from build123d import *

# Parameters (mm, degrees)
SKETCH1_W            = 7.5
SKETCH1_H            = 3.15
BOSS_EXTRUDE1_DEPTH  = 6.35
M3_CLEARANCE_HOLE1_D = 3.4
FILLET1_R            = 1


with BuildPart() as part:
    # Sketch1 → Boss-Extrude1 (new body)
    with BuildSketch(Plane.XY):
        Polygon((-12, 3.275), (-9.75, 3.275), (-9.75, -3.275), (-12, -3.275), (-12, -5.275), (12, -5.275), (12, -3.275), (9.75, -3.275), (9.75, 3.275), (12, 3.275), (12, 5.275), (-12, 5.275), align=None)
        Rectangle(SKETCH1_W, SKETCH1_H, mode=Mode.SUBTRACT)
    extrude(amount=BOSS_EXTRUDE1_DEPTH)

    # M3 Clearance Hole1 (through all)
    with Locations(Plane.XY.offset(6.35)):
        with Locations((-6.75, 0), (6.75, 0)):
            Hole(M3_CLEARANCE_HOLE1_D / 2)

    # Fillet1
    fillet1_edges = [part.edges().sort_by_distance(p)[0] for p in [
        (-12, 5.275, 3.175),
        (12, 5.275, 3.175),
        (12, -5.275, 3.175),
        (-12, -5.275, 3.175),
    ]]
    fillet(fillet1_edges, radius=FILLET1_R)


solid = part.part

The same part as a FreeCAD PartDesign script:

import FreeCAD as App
import Part
import Sketcher
from FreeCAD import Vector


def edges_at(feature, points):
    """Names of the edges that pass closest to the given points."""
    edges = feature.Shape.Edges
    near = lambda p: min(range(len(edges)), key=lambda i: edges[i].distToShape(Part.Vertex(*p))[0])
    return sorted({f"Edge{near(p) + 1}" for p in points})

doc = App.newDocument("Part")
params = doc.addObject("Spreadsheet::Sheet", "Params")
for row, (alias, value) in enumerate([
    ("sketch1_width", "24 mm"),
    ("sketch1_height", "2 mm"),
    ("sketch1_width2", "7.5 mm"),
    ("sketch1_height2", "6.55 mm"),
    ("sketch1_height3", "3.15 mm"),
    ("pad1_length", "6.35 mm"),
    ("sketch2_diameter", "3.4 mm"),
    ("hole_diameter", "3.4 mm"),
    ("fillet_radius", "1 mm"),
], start=1):
    params.set(f"A{row}", alias)
    params.set(f"B{row}", "=" + value)
    params.setAlias(f"B{row}", alias)

body = doc.addObject("PartDesign::Body", "Body")

sketch1 = body.newObject("Sketcher::SketchObject", "Sketch")
sketch1.AttachmentSupport = (doc.getObject("XY_Plane"), [""])
sketch1.MapMode = "FlatFace"
sketch1.addGeometry(Part.LineSegment(Vector(-12, 3.3, 0), Vector(-9.8, 3.3, 0)), False)
sketch1.addGeometry(Part.LineSegment(Vector(-9.8, 3.3, 0), Vector(-9.8, -3.3, 0)), False)
sketch1.addGeometry(Part.LineSegment(Vector(-9.8, -3.3, 0), Vector(-12, -3.3, 0)), False)
sketch1.addGeometry(Part.LineSegment(Vector(-12, -3.3, 0), Vector(-12, -5.3, 0)), False)
sketch1.addGeometry(Part.LineSegment(Vector(-12, -5.3, 0), Vector(12, -5.3, 0)), False)
sketch1.addGeometry(Part.LineSegment(Vector(12, -5.3, 0), Vector(12, -3.3, 0)), False)
sketch1.addGeometry(Part.LineSegment(Vector(12, -3.3, 0), Vector(9.8, -3.3, 0)), False)
sketch1.addGeometry(Part.LineSegment(Vector(9.8, -3.3, 0), Vector(9.8, 3.3, 0)), False)
sketch1.addGeometry(Part.LineSegment(Vector(9.8, 3.3, 0), Vector(12, 3.3, 0)), False)
sketch1.addGeometry(Part.LineSegment(Vector(12, 3.3, 0), Vector(12, 5.3, 0)), False)
sketch1.addGeometry(Part.LineSegment(Vector(12, 5.3, 0), Vector(-12, 5.3, 0)), False)
sketch1.addGeometry(Part.LineSegment(Vector(-12, 5.3, 0), Vector(-12, 3.3, 0)), False)
sketch1.addGeometry(Part.LineSegment(Vector(3.8, -1.6, 0), Vector(-3.8, -1.6, 0)), False)
sketch1.addGeometry(Part.LineSegment(Vector(-3.8, -1.6, 0), Vector(-3.8, 1.6, 0)), False)
sketch1.addGeometry(Part.LineSegment(Vector(-3.8, 1.6, 0), Vector(3.8, 1.6, 0)), False)
sketch1.addGeometry(Part.LineSegment(Vector(3.8, 1.6, 0), Vector(3.8, -1.6, 0)), False)
sketch1.addConstraint(Sketcher.Constraint("Coincident", 0, 2, 1, 1))
sketch1.addConstraint(Sketcher.Constraint("Coincident", 1, 2, 2, 1))
sketch1.addConstraint(Sketcher.Constraint("Coincident", 2, 2, 3, 1))
sketch1.addConstraint(Sketcher.Constraint("Coincident", 3, 2, 4, 1))
sketch1.addConstraint(Sketcher.Constraint("Coincident", 4, 2, 5, 1))
sketch1.addConstraint(Sketcher.Constraint("Coincident", 5, 2, 6, 1))
sketch1.addConstraint(Sketcher.Constraint("Coincident", 6, 2, 7, 1))
sketch1.addConstraint(Sketcher.Constraint("Coincident", 7, 2, 8, 1))
sketch1.addConstraint(Sketcher.Constraint("Coincident", 8, 2, 9, 1))
sketch1.addConstraint(Sketcher.Constraint("Coincident", 9, 2, 10, 1))
sketch1.addConstraint(Sketcher.Constraint("Coincident", 10, 2, 11, 1))
sketch1.addConstraint(Sketcher.Constraint("Coincident", 11, 2, 0, 1))
sketch1.addConstraint(Sketcher.Constraint("Coincident", 12, 2, 13, 1))
sketch1.addConstraint(Sketcher.Constraint("Coincident", 13, 2, 14, 1))
sketch1.addConstraint(Sketcher.Constraint("Coincident", 14, 2, 15, 1))
sketch1.addConstraint(Sketcher.Constraint("Coincident", 15, 2, 12, 1))
sketch1.addConstraint(Sketcher.Constraint("Horizontal", 0))
sketch1.addConstraint(Sketcher.Constraint("Vertical", 1))
sketch1.addConstraint(Sketcher.Constraint("Horizontal", 2))
sketch1.addConstraint(Sketcher.Constraint("Vertical", 3))
sketch1.addConstraint(Sketcher.Constraint("Horizontal", 4))
sketch1.addConstraint(Sketcher.Constraint("Vertical", 5))
sketch1.addConstraint(Sketcher.Constraint("Horizontal", 6))
sketch1.addConstraint(Sketcher.Constraint("Vertical", 7))
sketch1.addConstraint(Sketcher.Constraint("Horizontal", 8))
sketch1.addConstraint(Sketcher.Constraint("Vertical", 9))
sketch1.addConstraint(Sketcher.Constraint("Horizontal", 10))
sketch1.addConstraint(Sketcher.Constraint("Vertical", 11))
sketch1.addConstraint(Sketcher.Constraint("Horizontal", 12))
sketch1.addConstraint(Sketcher.Constraint("Vertical", 13))
sketch1.addConstraint(Sketcher.Constraint("Horizontal", 14))
sketch1.addConstraint(Sketcher.Constraint("Vertical", 15))
sketch1.addConstraint(Sketcher.Constraint("Symmetric", 0, 2, 6, 2, -1, 1))
sketch1.addConstraint(Sketcher.Constraint("Symmetric", 2, 2, 8, 2, -1, 1))
sketch1.addConstraint(Sketcher.Constraint("Symmetric", 4, 2, 10, 2, -1, 1))
sketch1.addConstraint(Sketcher.Constraint("Symmetric", 12, 2, 14, 2, -1, 1))
sketch1.addConstraint(Sketcher.Constraint("Symmetric", 2, 2, 5, 2, -2))
sketch1.addConstraint(Sketcher.Constraint("DistanceX", 4, 1, 4, 2, 24.0))
sketch1.addConstraint(Sketcher.Constraint("DistanceY", 3, 2, 3, 1, 2.0))
sketch1.addConstraint(Sketcher.Constraint("DistanceX", 12, 2, 12, 1, 7.5))
sketch1.addConstraint(Sketcher.Constraint("DistanceX", 1, 2, 12, 2, 6.0))
sketch1.addConstraint(Sketcher.Constraint("DistanceY", 1, 2, 1, 1, 6.55))
sketch1.addConstraint(Sketcher.Constraint("DistanceY", 13, 1, 13, 2, 3.15))
sketch1.setExpression("Constraints[37]", "Params.sketch1_width")
sketch1.setExpression("Constraints[38]", "Params.sketch1_height")
sketch1.setExpression("Constraints[39]", "Params.sketch1_width2")
sketch1.setExpression("Constraints[41]", "Params.sketch1_height2")
sketch1.setExpression("Constraints[42]", "Params.sketch1_height3")
pad1 = body.newObject("PartDesign::Pad", "Pad")
pad1.Profile = sketch1
pad1.setExpression("Length", "Params.pad1_length")

sketch2 = body.newObject("Sketcher::SketchObject", "Sketch001")
sketch2.AttachmentSupport = (doc.getObject("XY_Plane"), [""])
sketch2.MapMode = "FlatFace"
sketch2.AttachmentOffset = App.Placement(Vector(0, 0, 6.35), App.Rotation())
sketch2.addGeometry(Part.Circle(Vector(-6.8, 0, 0), Vector(0, 0, 1), 1.7), False)
sketch2.addGeometry(Part.Circle(Vector(6.8, 0, 0), Vector(0, 0, 1), 1.7), False)
sketch2.addConstraint(Sketcher.Constraint("Equal", 0, 1))
sketch2.addConstraint(Sketcher.Constraint("Symmetric", 0, 3, 1, 3, -1, 1))
sketch2.addConstraint(Sketcher.Constraint("PointOnObject", 0, 3, -1))
sketch2.addConstraint(Sketcher.Constraint("Diameter", 0, 3.4))
sketch2.addConstraint(Sketcher.Constraint("DistanceX", 0, 3, 1, 3, 13.5))
sketch2.setExpression("Constraints[3]", "Params.sketch2_diameter")
doc.recompute()
hole = body.newObject("PartDesign::Hole", "Hole")
hole.Profile = sketch2
hole.ThreadType = "None"
hole.setExpression("Diameter", "Params.hole_diameter")
hole.DepthType = "ThroughAll"
doc.recompute()

fillet = body.newObject("PartDesign::Fillet", "Fillet")
fillet.Base = (hole, edges_at(hole, [
    (-12, 5.275, 3.175),
    (12, 5.275, 3.175),
    (12, -5.275, 3.175),
    (-12, -5.275, 3.175),
]))
fillet.setExpression("Radius", "Params.fillet_radius")

doc.recompute()
